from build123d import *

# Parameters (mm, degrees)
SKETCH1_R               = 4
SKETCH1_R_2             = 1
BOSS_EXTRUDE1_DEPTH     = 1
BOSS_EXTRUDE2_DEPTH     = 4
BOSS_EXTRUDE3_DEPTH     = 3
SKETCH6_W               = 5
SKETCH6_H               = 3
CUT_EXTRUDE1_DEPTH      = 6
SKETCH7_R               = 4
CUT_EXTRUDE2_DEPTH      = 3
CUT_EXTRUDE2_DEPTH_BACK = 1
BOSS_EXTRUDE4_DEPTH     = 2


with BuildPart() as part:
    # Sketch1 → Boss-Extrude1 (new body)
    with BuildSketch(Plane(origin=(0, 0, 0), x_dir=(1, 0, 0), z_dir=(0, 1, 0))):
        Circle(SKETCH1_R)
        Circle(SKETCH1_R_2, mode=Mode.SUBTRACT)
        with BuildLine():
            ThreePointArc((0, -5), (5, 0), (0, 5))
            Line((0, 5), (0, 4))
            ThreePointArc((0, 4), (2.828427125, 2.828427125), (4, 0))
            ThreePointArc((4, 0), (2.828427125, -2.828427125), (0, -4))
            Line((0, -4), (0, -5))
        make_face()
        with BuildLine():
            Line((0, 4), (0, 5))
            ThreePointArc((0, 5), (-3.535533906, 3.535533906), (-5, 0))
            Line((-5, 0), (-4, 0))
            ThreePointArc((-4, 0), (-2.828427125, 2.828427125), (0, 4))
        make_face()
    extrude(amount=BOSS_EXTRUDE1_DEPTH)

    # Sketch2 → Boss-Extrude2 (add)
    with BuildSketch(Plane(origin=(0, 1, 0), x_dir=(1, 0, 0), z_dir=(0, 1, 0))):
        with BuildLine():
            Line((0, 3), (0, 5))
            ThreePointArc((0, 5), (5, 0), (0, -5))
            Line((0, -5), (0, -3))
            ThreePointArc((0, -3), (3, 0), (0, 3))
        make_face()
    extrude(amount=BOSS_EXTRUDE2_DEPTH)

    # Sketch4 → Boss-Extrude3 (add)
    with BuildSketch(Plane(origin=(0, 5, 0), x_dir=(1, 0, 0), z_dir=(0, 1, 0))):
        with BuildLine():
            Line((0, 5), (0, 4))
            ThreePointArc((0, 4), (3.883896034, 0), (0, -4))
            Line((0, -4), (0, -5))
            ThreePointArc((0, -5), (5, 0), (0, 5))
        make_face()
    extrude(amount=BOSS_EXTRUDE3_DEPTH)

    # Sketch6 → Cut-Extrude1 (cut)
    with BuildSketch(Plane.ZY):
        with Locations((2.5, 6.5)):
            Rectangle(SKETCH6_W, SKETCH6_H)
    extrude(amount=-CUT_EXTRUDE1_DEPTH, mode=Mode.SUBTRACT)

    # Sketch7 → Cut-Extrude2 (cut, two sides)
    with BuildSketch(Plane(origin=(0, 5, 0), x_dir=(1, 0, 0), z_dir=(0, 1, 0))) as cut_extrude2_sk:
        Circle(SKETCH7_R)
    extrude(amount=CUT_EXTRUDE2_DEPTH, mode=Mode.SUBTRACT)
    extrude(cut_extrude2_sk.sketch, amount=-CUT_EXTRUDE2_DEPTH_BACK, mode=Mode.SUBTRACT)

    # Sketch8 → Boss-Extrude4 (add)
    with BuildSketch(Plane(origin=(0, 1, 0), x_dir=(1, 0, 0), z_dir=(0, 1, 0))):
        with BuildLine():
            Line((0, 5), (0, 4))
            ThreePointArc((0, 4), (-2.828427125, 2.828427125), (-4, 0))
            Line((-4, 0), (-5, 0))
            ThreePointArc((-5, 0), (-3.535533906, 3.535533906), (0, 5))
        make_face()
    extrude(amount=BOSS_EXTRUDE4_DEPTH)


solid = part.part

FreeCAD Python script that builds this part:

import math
import FreeCAD as App
import Part
import Sketcher

V = App.Vector

doc = App.newDocument("Part")
params = doc.addObject("Spreadsheet::Sheet", "Params")
for row, (alias, value) in enumerate([
    ("sketch1_diameter", "2 mm"),
    ("sketch1_radius", "4 mm"),
    ("sketch1_radius2", "5 mm"),
    ("pad1_length", "1 mm"),
    ("sketch2_radius", "3 mm"),
    ("sketch2_radius2", "5 mm"),
    ("pad2_length", "4 mm"),
    ("sketch3_radius", "5 mm"),
    ("sketch3_height", "1 mm"),
    ("pad3_length", "3 mm"),
    ("sketch4_width", "3 mm"),
    ("sketch4_height", "5 mm"),
    ("pocket1_length", "6 mm"),
    ("sketch5_diameter", "8 mm"),
    ("pocket2_length", "3 mm"),
    ("pocket2_length2", "1 mm"),
    ("sketch6_radius", "5 mm"),
    ("sketch6_radius2", "4 mm"),
    ("pad4_length", "2 mm"),
], start=1):
    params.set(f"A{row}", alias)
    params.set(f"B{row}", "=" + value)
    params.setAlias(f"B{row}", alias)

body = doc.addObject("PartDesign::Body", "Body")

sketch1 = body.newObject("Sketcher::SketchObject", "Sketch")
sketch1.AttachmentSupport = (doc.getObject("XZ_Plane"), [""])
sketch1.MapMode = "FlatFace"
sketch1.addGeometry(Part.ArcOfCircle(Part.Circle(V(0, 0, 0), V(0, 0, 1), 4), math.radians(90), math.radians(180)), False)
sketch1.addGeometry(Part.LineSegment(V(0, 4, 0), V(0, 5, 0)), False)
sketch1.addGeometry(Part.ArcOfCircle(Part.Circle(V(0, 0, 0), V(0, 0, 1), 5), math.radians(-90), math.radians(90)), False)
sketch1.addGeometry(Part.ArcOfCircle(Part.Circle(V(0, 0, 0), V(0, 0, 1), 5), math.radians(180), math.radians(270)), False)
sketch1.addGeometry(Part.LineSegment(V(-5, 0, 0), V(-4, 0, 0)), False)
sketch1.addGeometry(Part.Circle(V(0, 0, 0), V(0, 0, 1), 1), False)
sketch1.addConstraint(Sketcher.Constraint("Coincident", 0, 1, 1, 1))
sketch1.addConstraint(Sketcher.Constraint("Coincident", 1, 2, 2, 2))
sketch1.addConstraint(Sketcher.Constraint("Tangent", 2, 1, 3, 2))
sketch1.addConstraint(Sketcher.Constraint("Coincident", 3, 1, 4, 1))
sketch1.addConstraint(Sketcher.Constraint("Coincident", 4, 2, 0, 2))
sketch1.addConstraint(Sketcher.Constraint("Vertical", 1))
sketch1.addConstraint(Sketcher.Constraint("Horizontal", 4))
sketch1.addConstraint(Sketcher.Constraint("Coincident", 0, 3, -1, 1))
sketch1.addConstraint(Sketcher.Constraint("Coincident", 2, 3, -1, 1))
sketch1.addConstraint(Sketcher.Constraint("Coincident", 5, 3, -1, 1))
sketch1.addConstraint(Sketcher.Constraint("Equal", 2, 3))
sketch1.addConstraint(Sketcher.Constraint("PointOnObject", 0, 1, -2))
sketch1.addConstraint(Sketcher.Constraint("PointOnObject", 2, 1, -2))
sketch1.addConstraint(Sketcher.Constraint("PointOnObject", 3, 1, -1))
sketch1.addConstraint(Sketcher.Constraint("Diameter", 5, 2.0))
sketch1.addConstraint(Sketcher.Constraint("Radius", 0, 4.0))
sketch1.addConstraint(Sketcher.Constraint("Radius", 2, 5.0))
sketch1.setExpression("Constraints[14]", "Params.sketch1_diameter")
sketch1.setExpression("Constraints[15]", "Params.sketch1_radius")
sketch1.setExpression("Constraints[16]", "Params.sketch1_radius2")
pad1 = body.newObject("PartDesign::Pad", "Pad")
pad1.Profile = sketch1
pad1.setExpression("Length", "Params.pad1_length")
pad1.Reversed = True

sketch2 = body.newObject("Sketcher::SketchObject", "Sketch001")
sketch2.AttachmentSupport = (doc.getObject("XZ_Plane"), [""])
sketch2.MapMode = "FlatFace"
sketch2.AttachmentOffset = App.Placement(V(0, 0, -1), App.Rotation())
sketch2.addGeometry(Part.LineSegment(V(0, -5, 0), V(0, -3, 0)), False)
sketch2.addGeometry(Part.ArcOfCircle(Part.Circle(V(0, 0, 0), V(0, 0, 1), 3), math.radians(-90), math.radians(90)), False)
sketch2.addGeometry(Part.LineSegment(V(0, 3, 0), V(0, 5, 0)), False)
sketch2.addGeometry(Part.ArcOfCircle(Part.Circle(V(0, 0, 0), V(0, 0, 1), 5), math.radians(-90), math.radians(90)), False)
sketch2.addConstraint(Sketcher.Constraint("Coincident", 0, 2, 1, 1))
sketch2.addConstraint(Sketcher.Constraint("Coincident", 1, 2, 2, 1))
sketch2.addConstraint(Sketcher.Constraint("Coincident", 2, 2, 3, 2))
sketch2.addConstraint(Sketcher.Constraint("Coincident", 3, 1, 0, 1))
sketch2.addConstraint(Sketcher.Constraint("Vertical", 0))
sketch2.addConstraint(Sketcher.Constraint("Vertical", 2))
sketch2.addConstraint(Sketcher.Constraint("Coincident", 1, 3, -1, 1))
sketch2.addConstraint(Sketcher.Constraint("Coincident", 3, 3, -1, 1))
sketch2.addConstraint(Sketcher.Constraint("PointOnObject", 0, 2, -2))
sketch2.addConstraint(Sketcher.Constraint("PointOnObject", 1, 2, -2))
sketch2.addConstraint(Sketcher.Constraint("Radius", 1, 3.0))
sketch2.addConstraint(Sketcher.Constraint("Radius", 3, 5.0))
sketch2.setExpression("Constraints[10]", "Params.sketch2_radius")
sketch2.setExpression("Constraints[11]", "Params.sketch2_radius2")
pad2 = body.newObject("PartDesign::Pad", "Pad001")
pad2.Profile = sketch2
pad2.setExpression("Length", "Params.pad2_length")
pad2.Reversed = True

sketch3 = body.newObject("Sketcher::SketchObject", "Sketch002")
sketch3.AttachmentSupport = (doc.getObject("XZ_Plane"), [""])
sketch3.MapMode = "FlatFace"
sketch3.AttachmentOffset = App.Placement(V(0, 0, -5), App.Rotation())
sketch3.addGeometry(Part.LineSegment(V(0, -5, 0), V(0, -4, 0)), False)
sketch3.addGeometry(Part.ArcOfCircle(Part.Circle(V(-0.1, 0, 0), V(0, 0, 1), 4), math.radians(-88), math.radians(88)), False)
sketch3.addGeometry(Part.LineSegment(V(0, 4, 0), V(0, 5, 0)), False)
sketch3.addGeometry(Part.ArcOfCircle(Part.Circle(V(0, 0, 0), V(0, 0, 1), 5), math.radians(-90), math.radians(90)), False)
sketch3.addConstraint(Sketcher.Constraint("Coincident", 0, 2, 1, 1))
sketch3.addConstraint(Sketcher.Constraint("Coincident", 1, 2, 2, 1))
sketch3.addConstraint(Sketcher.Constraint("Coincident", 2, 2, 3, 2))
sketch3.addConstraint(Sketcher.Constraint("Coincident", 3, 1, 0, 1))
sketch3.addConstraint(Sketcher.Constraint("Vertical", 0))
sketch3.addConstraint(Sketcher.Constraint("Vertical", 2))
sketch3.addConstraint(Sketcher.Constraint("Coincident", 3, 3, -1, 1))
sketch3.addConstraint(Sketcher.Constraint("Symmetric", 0, 2, 1, 2, -1, 1))
sketch3.addConstraint(Sketcher.Constraint("PointOnObject", 1, 3, -1))
sketch3.addConstraint(Sketcher.Constraint("Radius", 3, 5.0))
sketch3.addConstraint(Sketcher.Constraint("DistanceY", 0, 1, 0, 2, 1.0))
sketch3.addConstraint(Sketcher.Constraint("Radius", 1, 4.001735))
sketch3.setExpression("Constraints[9]", "Params.sketch3_radius")
sketch3.setExpression("Constraints[10]", "Params.sketch3_height")
pad3 = body.newObject("PartDesign::Pad", "Pad002")
pad3.Profile = sketch3
pad3.setExpression("Length", "Params.pad3_length")
pad3.Reversed = True

sketch4 = body.newObject("Sketcher::SketchObject", "Sketch003")
sketch4.AttachmentSupport = (doc.getObject("YZ_Plane"), [""])
sketch4.MapMode = "FlatFace"
sketch4.addGeometry(Part.LineSegment(V(8, 0, 0), V(5, 0, 0)), False)
sketch4.addGeometry(Part.LineSegment(V(5, 0, 0), V(5, 5, 0)), False)
sketch4.addGeometry(Part.LineSegment(V(5, 5, 0), V(8, 5, 0)), False)
sketch4.addGeometry(Part.LineSegment(V(8, 5, 0), V(8, 0, 0)), False)
sketch4.addConstraint(Sketcher.Constraint("Coincident", 0, 2, 1, 1))
sketch4.addConstraint(Sketcher.Constraint("Coincident", 1, 2, 2, 1))
sketch4.addConstraint(Sketcher.Constraint("Coincident", 2, 2, 3, 1))
sketch4.addConstraint(Sketcher.Constraint("Coincident", 3, 2, 0, 1))
sketch4.addConstraint(Sketcher.Constraint("Horizontal", 0))
sketch4.addConstraint(Sketcher.Constraint("Vertical", 1))
sketch4.addConstraint(Sketcher.Constraint("Horizontal", 2))
sketch4.addConstraint(Sketcher.Constraint("Vertical", 3))
sketch4.addConstraint(Sketcher.Constraint("PointOnObject", 0, 2, -1))
sketch4.addConstraint(Sketcher.Constraint("DistanceX", 0, 2, 0, 1, 3.0))
sketch4.addConstraint(Sketcher.Constraint("DistanceY", 1, 1, 1, 2, 5.0))
sketch4.addConstraint(Sketcher.Constraint("DistanceX", -1, 1, 0, 2, 5.0))
sketch4.setExpression("Constraints[9]", "Params.sketch4_width")
sketch4.setExpression("Constraints[10]", "Params.sketch4_height")
pocket1 = body.newObject("PartDesign::Pocket", "Pocket")
pocket1.Profile = sketch4
pocket1.setExpression("Length", "Params.pocket1_length")
pocket1.Reversed = True

sketch5 = body.newObject("Sketcher::SketchObject", "Sketch004")
sketch5.AttachmentSupport = (doc.getObject("XZ_Plane"), [""])
sketch5.MapMode = "FlatFace"
sketch5.AttachmentOffset = App.Placement(V(0, 0, -5), App.Rotation())
sketch5.addGeometry(Part.Circle(V(0, 0, 0), V(0, 0, 1), 4), False)
sketch5.addConstraint(Sketcher.Constraint("Coincident", 0, 3, -1, 1))
sketch5.addConstraint(Sketcher.Constraint("Diameter", 0, 8.0))
sketch5.setExpression("Constraints[1]", "Params.sketch5_diameter")
pocket2 = body.newObject("PartDesign::Pocket", "Pocket001")
pocket2.Profile = sketch5
pocket2.Type = "TwoLengths"
pocket2.setExpression("Length", "Params.pocket2_length")
pocket2.setExpression("Length2", "Params.pocket2_length2")

sketch6 = body.newObject("Sketcher::SketchObject", "Sketch005")
sketch6.AttachmentSupport = (doc.getObject("XZ_Plane"), [""])
sketch6.MapMode = "FlatFace"
sketch6.AttachmentOffset = App.Placement(V(0, 0, -1), App.Rotation())
sketch6.addGeometry(Part.LineSegment(V(0, -4, 0), V(0, -5, 0)), False)
sketch6.addGeometry(Part.ArcOfCircle(Part.Circle(V(0, 0, 0), V(0, 0, 1), 5), math.radians(180), math.radians(270)), False)
sketch6.addGeometry(Part.LineSegment(V(-5, 0, 0), V(-4, 0, 0)), False)
sketch6.addGeometry(Part.ArcOfCircle(Part.Circle(V(0, 0, 0), V(0, 0, 1), 4), math.radians(180), math.radians(270)), False)
sketch6.addConstraint(Sketcher.Constraint("Coincident", 0, 2, 1, 2))
sketch6.addConstraint(Sketcher.Constraint("Coincident", 1, 1, 2, 1))
sketch6.addConstraint(Sketcher.Constraint("Coincident", 2, 2, 3, 1))
sketch6.addConstraint(Sketcher.Constraint("Coincident", 3, 2, 0, 1))
sketch6.addConstraint(Sketcher.Constraint("Vertical", 0))
sketch6.addConstraint(Sketcher.Constraint("Horizontal", 2))
sketch6.addConstraint(Sketcher.Constraint("Coincident", 1, 3, -1, 1))
sketch6.addConstraint(Sketcher.Constraint("Coincident", 3, 3, -1, 1))
sketch6.addConstraint(Sketcher.Constraint("PointOnObject", 0, 2, -2))
sketch6.addConstraint(Sketcher.Constraint("PointOnObject", 1, 1, -1))
sketch6.addConstraint(Sketcher.Constraint("Radius", 1, 5.0))
sketch6.addConstraint(Sketcher.Constraint("Radius", 3, 4.0))
sketch6.setExpression("Constraints[10]", "Params.sketch6_radius")
sketch6.setExpression("Constraints[11]", "Params.sketch6_radius2")
pad4 = body.newObject("PartDesign::Pad", "Pad003")
pad4.Profile = sketch6
pad4.setExpression("Length", "Params.pad4_length")
pad4.Reversed = True

doc.recompute()
